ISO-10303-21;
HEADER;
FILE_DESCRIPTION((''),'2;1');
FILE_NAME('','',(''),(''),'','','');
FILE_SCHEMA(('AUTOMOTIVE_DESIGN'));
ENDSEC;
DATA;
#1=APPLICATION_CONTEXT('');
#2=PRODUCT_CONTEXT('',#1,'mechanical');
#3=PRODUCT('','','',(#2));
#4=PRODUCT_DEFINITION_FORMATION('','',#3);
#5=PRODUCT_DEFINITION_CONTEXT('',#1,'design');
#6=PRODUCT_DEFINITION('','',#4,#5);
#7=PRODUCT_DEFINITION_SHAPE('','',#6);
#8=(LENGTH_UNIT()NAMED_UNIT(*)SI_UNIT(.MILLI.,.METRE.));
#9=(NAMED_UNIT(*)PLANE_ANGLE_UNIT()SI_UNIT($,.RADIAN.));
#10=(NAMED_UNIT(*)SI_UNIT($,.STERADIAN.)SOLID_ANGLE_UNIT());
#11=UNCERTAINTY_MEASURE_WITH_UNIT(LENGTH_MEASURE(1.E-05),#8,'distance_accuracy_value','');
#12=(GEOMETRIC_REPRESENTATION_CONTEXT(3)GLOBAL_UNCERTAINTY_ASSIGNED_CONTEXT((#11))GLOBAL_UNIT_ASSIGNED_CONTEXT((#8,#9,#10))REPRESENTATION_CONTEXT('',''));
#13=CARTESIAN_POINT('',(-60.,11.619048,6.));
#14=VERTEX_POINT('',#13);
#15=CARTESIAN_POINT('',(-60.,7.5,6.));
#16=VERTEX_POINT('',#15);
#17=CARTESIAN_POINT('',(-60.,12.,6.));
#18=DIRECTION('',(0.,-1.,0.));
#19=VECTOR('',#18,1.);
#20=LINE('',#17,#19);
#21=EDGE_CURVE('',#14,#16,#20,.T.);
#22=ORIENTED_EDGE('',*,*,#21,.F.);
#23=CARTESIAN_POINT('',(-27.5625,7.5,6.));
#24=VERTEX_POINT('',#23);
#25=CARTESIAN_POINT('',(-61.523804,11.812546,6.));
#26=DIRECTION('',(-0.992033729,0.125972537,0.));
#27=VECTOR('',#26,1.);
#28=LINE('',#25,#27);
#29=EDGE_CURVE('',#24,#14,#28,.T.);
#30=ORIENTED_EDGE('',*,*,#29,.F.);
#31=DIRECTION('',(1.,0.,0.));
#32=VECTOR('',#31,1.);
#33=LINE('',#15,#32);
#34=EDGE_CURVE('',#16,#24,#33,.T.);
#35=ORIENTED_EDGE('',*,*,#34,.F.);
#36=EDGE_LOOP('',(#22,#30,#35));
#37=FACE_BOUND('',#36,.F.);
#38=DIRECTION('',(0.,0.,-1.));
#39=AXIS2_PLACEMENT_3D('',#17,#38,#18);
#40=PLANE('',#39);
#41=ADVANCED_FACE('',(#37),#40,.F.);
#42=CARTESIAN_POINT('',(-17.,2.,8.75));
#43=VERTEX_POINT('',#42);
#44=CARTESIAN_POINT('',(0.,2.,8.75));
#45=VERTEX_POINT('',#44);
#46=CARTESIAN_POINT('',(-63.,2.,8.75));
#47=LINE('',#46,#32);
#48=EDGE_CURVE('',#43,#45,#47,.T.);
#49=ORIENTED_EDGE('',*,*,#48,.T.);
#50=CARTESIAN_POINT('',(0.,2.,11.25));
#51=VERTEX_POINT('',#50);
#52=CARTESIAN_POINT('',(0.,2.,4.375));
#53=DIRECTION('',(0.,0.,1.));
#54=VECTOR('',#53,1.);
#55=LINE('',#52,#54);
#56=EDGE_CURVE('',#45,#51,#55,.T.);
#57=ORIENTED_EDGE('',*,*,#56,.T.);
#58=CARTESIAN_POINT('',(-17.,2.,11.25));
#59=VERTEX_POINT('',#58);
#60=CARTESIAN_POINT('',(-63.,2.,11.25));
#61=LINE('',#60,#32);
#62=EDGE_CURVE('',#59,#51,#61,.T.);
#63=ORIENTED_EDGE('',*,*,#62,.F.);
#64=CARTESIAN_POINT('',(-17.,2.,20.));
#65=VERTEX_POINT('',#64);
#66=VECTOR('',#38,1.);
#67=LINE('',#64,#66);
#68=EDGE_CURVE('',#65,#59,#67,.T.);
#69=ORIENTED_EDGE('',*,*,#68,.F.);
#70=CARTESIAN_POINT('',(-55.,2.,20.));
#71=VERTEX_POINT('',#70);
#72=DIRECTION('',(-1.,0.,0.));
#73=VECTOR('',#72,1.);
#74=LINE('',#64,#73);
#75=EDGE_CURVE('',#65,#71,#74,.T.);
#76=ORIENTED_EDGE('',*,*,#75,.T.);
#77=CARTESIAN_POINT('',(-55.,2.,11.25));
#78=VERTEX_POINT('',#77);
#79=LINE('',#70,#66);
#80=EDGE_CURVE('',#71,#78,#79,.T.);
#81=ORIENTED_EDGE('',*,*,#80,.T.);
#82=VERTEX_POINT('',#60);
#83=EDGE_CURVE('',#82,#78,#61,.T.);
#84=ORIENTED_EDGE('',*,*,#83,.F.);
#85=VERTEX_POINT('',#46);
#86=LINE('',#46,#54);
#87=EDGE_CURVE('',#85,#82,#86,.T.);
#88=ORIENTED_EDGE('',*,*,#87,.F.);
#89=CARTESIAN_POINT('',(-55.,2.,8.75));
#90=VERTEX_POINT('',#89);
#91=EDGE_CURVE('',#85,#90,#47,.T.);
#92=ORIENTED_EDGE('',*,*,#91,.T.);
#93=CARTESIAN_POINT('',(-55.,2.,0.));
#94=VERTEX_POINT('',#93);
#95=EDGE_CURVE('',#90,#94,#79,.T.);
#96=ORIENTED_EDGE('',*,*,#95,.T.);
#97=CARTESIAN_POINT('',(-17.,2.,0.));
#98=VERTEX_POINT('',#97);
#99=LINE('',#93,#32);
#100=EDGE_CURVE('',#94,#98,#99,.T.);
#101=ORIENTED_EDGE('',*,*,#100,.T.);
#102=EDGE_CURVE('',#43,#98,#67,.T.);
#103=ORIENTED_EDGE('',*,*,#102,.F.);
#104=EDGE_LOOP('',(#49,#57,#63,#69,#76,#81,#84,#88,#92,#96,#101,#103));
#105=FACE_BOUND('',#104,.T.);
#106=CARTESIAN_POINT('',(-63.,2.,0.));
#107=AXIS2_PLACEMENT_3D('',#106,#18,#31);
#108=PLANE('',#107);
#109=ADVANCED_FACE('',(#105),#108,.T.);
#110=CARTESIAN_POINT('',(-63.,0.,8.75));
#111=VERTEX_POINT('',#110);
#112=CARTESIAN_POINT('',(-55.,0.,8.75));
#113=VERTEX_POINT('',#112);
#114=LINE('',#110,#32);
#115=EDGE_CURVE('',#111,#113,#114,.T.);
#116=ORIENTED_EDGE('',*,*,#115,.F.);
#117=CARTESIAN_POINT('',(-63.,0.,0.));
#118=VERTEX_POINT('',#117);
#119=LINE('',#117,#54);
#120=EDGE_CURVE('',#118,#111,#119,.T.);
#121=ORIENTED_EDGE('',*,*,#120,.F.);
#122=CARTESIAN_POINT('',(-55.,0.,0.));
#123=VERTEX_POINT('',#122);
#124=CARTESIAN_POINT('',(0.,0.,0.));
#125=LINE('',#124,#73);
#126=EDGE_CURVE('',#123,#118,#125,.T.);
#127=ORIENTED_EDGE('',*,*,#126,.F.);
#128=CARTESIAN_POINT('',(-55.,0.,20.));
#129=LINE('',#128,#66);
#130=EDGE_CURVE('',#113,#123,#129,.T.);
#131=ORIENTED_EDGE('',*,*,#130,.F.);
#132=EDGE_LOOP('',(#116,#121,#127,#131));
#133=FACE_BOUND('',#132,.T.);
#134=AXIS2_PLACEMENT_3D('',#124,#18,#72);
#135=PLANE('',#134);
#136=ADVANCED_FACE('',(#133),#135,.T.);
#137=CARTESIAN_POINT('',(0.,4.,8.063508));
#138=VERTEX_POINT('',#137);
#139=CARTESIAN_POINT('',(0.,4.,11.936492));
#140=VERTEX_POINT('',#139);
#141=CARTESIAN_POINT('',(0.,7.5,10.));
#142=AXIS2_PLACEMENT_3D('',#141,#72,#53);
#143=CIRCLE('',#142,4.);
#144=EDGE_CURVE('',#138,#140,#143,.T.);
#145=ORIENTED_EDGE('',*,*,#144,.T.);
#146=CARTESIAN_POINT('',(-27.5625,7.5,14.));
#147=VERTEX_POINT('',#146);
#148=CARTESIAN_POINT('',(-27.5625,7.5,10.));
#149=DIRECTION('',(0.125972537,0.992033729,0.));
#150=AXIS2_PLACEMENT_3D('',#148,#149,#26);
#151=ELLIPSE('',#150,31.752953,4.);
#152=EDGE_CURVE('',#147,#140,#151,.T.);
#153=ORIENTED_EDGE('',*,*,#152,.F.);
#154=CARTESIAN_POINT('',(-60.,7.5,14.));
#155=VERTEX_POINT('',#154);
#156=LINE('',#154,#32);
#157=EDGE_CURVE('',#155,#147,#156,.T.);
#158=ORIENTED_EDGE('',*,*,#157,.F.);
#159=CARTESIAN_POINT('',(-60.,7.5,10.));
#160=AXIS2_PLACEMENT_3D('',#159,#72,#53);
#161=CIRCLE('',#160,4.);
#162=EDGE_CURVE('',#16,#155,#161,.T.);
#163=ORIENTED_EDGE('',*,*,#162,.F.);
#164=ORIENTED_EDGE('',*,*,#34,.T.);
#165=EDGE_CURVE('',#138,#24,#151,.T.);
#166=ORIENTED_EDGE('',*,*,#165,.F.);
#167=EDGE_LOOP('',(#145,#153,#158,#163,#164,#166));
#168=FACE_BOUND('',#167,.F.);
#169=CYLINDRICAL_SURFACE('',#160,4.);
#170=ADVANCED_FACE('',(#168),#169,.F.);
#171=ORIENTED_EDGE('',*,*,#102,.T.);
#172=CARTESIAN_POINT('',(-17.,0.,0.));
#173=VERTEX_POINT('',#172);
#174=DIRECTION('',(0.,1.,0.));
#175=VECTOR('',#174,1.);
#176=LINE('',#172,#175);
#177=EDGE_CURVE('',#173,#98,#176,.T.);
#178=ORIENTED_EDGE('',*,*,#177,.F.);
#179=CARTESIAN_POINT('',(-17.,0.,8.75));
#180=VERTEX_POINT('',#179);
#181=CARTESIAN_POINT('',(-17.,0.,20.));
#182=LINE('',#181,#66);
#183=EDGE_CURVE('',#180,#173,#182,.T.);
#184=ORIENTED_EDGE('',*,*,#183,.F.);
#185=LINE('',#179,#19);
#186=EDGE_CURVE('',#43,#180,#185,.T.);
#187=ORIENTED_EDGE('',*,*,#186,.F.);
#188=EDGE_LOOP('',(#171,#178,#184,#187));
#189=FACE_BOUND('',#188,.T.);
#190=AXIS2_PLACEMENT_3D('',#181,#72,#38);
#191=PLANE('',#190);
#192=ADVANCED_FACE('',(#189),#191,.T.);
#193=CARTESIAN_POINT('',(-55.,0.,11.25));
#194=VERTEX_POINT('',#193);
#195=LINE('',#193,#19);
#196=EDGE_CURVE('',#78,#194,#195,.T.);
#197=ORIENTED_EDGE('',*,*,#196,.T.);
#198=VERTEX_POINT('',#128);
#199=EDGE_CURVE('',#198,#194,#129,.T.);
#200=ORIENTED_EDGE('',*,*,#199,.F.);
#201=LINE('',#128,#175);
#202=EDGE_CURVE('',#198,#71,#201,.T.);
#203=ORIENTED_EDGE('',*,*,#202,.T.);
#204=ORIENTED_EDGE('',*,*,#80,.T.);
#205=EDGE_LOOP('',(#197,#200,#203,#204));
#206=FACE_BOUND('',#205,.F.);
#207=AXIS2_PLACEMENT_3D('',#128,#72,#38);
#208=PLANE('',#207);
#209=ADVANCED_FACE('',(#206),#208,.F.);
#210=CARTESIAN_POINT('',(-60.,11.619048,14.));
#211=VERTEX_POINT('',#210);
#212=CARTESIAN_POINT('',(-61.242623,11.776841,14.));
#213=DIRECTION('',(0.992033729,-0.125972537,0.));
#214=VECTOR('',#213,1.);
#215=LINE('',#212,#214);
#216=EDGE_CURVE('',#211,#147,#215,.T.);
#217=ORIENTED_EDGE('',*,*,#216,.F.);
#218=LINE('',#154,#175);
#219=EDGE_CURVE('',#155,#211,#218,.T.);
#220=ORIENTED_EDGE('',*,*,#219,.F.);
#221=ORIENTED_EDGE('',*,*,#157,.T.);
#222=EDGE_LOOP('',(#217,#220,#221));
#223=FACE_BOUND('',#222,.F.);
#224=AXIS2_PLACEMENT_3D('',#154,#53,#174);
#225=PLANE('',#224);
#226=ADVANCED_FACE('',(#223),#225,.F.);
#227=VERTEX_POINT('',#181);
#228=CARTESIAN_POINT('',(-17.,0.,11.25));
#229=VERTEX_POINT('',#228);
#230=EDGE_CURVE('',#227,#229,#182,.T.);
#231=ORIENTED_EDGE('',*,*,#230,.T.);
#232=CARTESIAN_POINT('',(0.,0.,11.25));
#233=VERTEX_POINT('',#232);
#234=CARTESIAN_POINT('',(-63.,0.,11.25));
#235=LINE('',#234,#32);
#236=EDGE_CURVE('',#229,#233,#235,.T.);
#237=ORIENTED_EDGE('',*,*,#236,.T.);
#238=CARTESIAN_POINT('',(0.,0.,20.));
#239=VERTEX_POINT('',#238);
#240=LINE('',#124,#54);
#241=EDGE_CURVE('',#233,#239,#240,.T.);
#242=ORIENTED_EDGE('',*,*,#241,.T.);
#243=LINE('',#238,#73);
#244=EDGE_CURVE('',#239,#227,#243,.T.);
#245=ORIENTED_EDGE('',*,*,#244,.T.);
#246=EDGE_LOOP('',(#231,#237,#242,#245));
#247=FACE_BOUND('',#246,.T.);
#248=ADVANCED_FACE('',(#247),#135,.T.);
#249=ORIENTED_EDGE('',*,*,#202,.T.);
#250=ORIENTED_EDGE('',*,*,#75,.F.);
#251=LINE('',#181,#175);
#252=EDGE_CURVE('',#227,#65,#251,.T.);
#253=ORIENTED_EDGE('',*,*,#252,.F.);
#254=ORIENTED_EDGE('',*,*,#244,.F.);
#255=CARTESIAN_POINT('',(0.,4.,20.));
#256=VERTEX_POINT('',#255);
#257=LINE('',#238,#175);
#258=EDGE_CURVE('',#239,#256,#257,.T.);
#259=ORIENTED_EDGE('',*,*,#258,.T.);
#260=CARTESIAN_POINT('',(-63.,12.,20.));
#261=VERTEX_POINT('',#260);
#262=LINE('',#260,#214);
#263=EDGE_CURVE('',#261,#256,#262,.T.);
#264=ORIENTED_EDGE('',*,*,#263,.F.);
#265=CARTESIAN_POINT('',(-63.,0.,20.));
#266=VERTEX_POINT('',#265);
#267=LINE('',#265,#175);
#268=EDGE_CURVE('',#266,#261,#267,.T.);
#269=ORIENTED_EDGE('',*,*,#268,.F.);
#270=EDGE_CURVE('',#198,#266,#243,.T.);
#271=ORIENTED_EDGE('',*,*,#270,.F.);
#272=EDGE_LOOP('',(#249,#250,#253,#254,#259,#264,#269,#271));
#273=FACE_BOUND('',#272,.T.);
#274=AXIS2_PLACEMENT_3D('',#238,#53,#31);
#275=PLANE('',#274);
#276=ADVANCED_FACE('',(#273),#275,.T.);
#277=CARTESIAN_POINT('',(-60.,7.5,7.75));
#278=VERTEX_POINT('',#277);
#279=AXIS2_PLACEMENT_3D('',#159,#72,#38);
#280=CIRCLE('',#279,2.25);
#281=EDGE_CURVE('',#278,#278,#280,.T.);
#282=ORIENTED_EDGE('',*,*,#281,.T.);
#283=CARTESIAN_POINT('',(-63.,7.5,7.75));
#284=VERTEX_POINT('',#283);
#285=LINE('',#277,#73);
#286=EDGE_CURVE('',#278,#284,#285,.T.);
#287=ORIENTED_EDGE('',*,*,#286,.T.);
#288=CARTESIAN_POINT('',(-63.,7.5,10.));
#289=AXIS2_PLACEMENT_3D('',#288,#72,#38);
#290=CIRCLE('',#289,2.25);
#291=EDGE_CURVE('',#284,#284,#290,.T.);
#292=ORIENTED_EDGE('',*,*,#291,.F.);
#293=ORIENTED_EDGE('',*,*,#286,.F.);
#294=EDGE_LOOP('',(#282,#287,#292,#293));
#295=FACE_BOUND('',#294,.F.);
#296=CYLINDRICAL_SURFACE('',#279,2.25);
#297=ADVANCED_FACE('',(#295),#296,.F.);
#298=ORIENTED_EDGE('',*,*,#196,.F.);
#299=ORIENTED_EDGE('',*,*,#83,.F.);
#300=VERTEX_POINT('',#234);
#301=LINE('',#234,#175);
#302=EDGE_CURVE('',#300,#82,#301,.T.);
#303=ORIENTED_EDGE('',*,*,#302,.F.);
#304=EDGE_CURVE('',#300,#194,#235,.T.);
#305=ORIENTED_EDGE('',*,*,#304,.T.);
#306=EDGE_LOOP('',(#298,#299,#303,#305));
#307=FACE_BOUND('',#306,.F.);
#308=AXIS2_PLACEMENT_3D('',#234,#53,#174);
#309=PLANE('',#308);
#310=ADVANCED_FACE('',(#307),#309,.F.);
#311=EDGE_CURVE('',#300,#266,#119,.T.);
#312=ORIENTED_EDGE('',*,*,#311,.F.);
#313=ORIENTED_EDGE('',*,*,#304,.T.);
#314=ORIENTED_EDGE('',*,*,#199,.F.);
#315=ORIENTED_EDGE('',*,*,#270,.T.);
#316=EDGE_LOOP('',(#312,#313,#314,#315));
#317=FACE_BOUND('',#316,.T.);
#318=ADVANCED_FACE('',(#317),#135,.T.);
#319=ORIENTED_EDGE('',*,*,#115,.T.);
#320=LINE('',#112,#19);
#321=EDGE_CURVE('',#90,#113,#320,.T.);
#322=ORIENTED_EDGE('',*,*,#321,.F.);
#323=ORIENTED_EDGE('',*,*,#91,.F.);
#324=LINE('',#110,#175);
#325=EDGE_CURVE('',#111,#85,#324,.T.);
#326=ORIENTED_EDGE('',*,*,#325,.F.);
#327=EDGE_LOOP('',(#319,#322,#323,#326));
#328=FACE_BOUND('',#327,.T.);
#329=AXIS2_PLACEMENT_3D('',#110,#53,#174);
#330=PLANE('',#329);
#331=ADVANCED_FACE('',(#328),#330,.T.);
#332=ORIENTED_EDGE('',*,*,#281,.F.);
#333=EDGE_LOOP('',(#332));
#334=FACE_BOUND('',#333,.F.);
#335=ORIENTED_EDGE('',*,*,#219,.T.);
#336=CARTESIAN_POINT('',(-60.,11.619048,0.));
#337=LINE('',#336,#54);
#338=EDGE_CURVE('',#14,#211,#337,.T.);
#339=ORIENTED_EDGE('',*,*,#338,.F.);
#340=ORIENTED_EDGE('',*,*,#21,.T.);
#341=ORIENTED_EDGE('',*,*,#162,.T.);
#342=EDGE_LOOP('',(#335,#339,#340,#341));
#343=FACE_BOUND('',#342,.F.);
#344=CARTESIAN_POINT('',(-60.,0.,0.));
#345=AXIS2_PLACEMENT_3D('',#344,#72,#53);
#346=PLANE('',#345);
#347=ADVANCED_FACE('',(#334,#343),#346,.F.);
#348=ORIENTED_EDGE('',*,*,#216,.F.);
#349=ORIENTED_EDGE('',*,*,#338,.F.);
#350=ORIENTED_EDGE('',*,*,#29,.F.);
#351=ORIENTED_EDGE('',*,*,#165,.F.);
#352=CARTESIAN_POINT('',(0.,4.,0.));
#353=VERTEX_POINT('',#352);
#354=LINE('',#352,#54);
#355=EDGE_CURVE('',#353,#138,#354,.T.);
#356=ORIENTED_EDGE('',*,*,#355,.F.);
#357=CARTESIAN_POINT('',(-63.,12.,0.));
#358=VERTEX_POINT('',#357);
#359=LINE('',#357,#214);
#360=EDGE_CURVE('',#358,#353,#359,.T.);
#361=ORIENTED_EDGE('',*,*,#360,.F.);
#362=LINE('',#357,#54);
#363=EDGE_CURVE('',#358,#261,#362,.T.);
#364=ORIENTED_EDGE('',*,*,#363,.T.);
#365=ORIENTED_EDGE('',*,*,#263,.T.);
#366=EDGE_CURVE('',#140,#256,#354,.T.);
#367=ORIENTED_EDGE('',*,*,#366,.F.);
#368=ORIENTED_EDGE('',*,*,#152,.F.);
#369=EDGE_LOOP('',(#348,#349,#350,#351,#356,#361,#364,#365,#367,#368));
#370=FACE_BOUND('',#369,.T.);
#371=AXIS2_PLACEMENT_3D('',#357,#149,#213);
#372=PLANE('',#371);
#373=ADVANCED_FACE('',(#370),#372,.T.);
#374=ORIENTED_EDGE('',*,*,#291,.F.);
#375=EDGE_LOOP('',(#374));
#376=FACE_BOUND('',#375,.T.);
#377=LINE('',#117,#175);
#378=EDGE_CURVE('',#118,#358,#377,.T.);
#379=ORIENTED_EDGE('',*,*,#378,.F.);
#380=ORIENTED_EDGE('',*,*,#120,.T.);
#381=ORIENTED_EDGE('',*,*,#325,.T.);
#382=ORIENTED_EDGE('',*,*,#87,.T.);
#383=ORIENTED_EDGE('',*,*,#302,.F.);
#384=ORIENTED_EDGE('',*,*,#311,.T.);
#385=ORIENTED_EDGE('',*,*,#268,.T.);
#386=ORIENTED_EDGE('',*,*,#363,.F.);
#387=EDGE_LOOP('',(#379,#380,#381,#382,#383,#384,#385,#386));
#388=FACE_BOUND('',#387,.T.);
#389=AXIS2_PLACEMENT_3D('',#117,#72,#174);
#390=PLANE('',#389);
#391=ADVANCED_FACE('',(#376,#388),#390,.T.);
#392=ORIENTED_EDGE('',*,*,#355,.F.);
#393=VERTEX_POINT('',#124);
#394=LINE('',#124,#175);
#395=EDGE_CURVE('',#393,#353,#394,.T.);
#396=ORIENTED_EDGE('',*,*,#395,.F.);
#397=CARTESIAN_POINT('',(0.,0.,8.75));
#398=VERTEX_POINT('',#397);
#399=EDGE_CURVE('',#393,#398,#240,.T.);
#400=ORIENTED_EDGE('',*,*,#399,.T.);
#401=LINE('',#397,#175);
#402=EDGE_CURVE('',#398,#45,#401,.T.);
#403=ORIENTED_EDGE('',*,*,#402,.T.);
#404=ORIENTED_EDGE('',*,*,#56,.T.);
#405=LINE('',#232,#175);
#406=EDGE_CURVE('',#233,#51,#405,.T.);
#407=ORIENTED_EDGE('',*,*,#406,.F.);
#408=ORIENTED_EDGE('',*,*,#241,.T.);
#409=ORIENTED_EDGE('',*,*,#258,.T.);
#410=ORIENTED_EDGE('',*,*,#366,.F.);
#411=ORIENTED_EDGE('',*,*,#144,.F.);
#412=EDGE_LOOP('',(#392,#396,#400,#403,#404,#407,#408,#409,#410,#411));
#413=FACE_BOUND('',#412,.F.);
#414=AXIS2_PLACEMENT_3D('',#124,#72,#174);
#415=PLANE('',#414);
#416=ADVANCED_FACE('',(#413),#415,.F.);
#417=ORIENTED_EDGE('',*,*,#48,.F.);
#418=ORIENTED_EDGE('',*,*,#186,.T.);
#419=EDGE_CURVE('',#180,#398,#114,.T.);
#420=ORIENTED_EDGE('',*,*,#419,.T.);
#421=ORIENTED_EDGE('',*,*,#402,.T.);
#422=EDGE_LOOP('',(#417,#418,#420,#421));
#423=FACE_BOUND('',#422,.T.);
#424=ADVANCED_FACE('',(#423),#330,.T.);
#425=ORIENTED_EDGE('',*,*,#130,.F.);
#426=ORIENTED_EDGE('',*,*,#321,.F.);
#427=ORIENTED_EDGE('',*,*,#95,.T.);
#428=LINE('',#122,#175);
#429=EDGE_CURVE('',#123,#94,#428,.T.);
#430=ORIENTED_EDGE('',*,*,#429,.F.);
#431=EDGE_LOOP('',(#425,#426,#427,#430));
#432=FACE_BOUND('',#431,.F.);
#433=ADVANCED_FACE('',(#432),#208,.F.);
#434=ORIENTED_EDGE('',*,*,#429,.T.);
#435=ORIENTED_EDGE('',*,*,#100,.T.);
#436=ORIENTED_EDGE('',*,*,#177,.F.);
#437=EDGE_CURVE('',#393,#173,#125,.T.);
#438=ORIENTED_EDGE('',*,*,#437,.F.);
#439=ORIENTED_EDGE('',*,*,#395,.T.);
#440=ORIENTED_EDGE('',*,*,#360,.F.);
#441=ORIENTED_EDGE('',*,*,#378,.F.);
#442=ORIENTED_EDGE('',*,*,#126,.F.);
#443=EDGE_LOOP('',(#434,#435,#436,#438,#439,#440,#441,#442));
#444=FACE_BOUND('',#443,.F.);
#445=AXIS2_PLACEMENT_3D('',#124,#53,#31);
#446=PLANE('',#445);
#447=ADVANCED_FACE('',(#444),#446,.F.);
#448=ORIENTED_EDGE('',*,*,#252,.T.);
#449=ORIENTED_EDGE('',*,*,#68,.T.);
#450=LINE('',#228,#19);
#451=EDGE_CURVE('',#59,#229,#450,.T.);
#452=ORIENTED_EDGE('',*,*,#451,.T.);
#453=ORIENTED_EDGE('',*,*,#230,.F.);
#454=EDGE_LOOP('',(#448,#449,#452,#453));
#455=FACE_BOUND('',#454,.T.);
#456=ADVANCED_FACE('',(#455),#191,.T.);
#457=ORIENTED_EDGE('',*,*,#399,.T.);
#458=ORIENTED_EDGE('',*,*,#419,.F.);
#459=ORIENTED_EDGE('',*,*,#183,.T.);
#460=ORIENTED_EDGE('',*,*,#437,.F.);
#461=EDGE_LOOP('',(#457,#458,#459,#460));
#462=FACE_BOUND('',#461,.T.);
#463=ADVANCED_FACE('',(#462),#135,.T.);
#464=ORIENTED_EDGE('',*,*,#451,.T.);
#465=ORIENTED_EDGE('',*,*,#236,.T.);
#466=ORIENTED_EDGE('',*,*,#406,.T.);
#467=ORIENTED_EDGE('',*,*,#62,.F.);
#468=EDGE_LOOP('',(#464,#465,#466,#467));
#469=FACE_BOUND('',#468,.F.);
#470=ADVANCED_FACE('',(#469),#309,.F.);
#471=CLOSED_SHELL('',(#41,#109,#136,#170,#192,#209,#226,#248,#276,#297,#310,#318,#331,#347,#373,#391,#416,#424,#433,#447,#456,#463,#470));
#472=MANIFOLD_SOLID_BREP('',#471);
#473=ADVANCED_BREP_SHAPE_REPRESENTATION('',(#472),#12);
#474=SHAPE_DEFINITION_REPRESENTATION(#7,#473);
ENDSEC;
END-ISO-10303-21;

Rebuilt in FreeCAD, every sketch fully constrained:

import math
import FreeCAD as App
import Part
import Sketcher

V = App.Vector
Q = App.Units.Quantity


def add_polygon(sketch, points):
    """Adds a closed chain of lines whose ends are joined by coincident constraints."""
    first, n = sketch.GeometryCount, len(points)
    for a, b in zip(points, points[1:] + points[:1]):
        sketch.addGeometry(Part.LineSegment(App.Vector(*a, 0), App.Vector(*b, 0)), False)
    for i in range(n):
        sketch.addConstraint(Sketcher.Constraint("Coincident", first + i, 2, first + (i + 1) % n, 1))

doc = App.newDocument("Part")
body = doc.addObject("PartDesign::Body", "Body")

sketch1 = body.newObject("Sketcher::SketchObject", "Sketch")
sketch1.AttachmentSupport = (doc.getObject("XY_Plane"), [""])
sketch1.MapMode = "FlatFace"
add_polygon(sketch1, [(-63, 0), (0, 0), (0, 4), (-63, 12)])
sketch1.addConstraint([
    Sketcher.Constraint("Horizontal", 0),
    Sketcher.Constraint("Vertical", 1),
    Sketcher.Constraint("Vertical", 3),
    Sketcher.Constraint("Coincident", 0, 2, -1, 1),
    Sketcher.Constraint("DistanceX", 0, 1, 0, 2, Q("63 mm")),
    Sketcher.Constraint("DistanceY", 1, 1, 1, 2, Q("4 mm")),
    Sketcher.Constraint("DistanceY", 3, 2, 3, 1, Q("12 mm")),
])
pad1 = body.newObject("PartDesign::Pad", "Pad")
pad1.Profile = sketch1
pad1.Length = 20

sketch2 = body.newObject("Sketcher::SketchObject", "Sketch001")
sketch2.AttachmentSupport = (doc.getObject("YZ_Plane"), [""])
sketch2.MapMode = "FlatFace"
sketch2.AttachmentOffset = App.Placement(V(0, 0, -63), App.Rotation())
add_polygon(sketch2, [(2, 8.8), (0, 8.8), (0, 11.2), (2, 11.2)])
sketch2.addConstraint([
    Sketcher.Constraint("Horizontal", 0),
    Sketcher.Constraint("Vertical", 1),
    Sketcher.Constraint("Horizontal", 2),
    Sketcher.Constraint("Vertical", 3),
    Sketcher.Constraint("PointOnObject", 0, 2, -2),
    Sketcher.Constraint("DistanceX", 0, 2, 0, 1, Q("2 mm")),
    Sketcher.Constraint("DistanceY", 1, 1, 1, 2, Q("2.5 mm")),
    Sketcher.Constraint("DistanceY", -1, 1, 0, 2, Q("8.75 mm")),
])
pocket1 = body.newObject("PartDesign::Pocket", "Pocket")
pocket1.Profile = sketch2
pocket1.Type = "ThroughAll"
pocket1.Reversed = True

sketch3 = body.newObject("Sketcher::SketchObject", "Sketch002")
sketch3.AttachmentSupport = (doc.getObject("YZ_Plane"), [""])
sketch3.MapMode = "FlatFace"
sketch3.AttachmentOffset = App.Placement(V(0, 0, -60), App.Rotation())
sketch3.addGeometry([
    Part.LineSegment(V(12, 14, 0), V(12, 6, 0)),
    Part.LineSegment(V(12, 6, 0), V(7.5, 6, 0)),
    Part.ArcOfCircle(Part.Circle(V(7.5, 10, 0), V(0, 0, 1), 4), math.radians(90), math.radians(270)),
    Part.LineSegment(V(7.5, 14, 0), V(12, 14, 0)),
], False)
sketch3.addConstraint([
    Sketcher.Constraint("Coincident", 0, 2, 1, 1),
    Sketcher.Constraint("Tangent", 1, 2, 2, 2),
    Sketcher.Constraint("Tangent", 2, 1, 3, 1),
    Sketcher.Constraint("Coincident", 3, 2, 0, 1),
    Sketcher.Constraint("Vertical", 0),
    Sketcher.Constraint("Horizontal", 1),
    Sketcher.Constraint("Horizontal", 3),
    Sketcher.Constraint("Radius", 2, Q("4 mm")),
    Sketcher.Constraint("DistanceX", 1, 2, 1, 1, Q("4.5 mm")),
    Sketcher.Constraint("DistanceY", -1, 1, 2, 3, Q("10 mm")),
    Sketcher.Constraint("DistanceX", -1, 1, 0, 2, Q("12 mm")),
])
pocket2 = body.newObject("PartDesign::Pocket", "Pocket001")
pocket2.Profile = sketch3
pocket2.Type = "ThroughAll"
pocket2.Reversed = True

sketch4 = body.newObject("Sketcher::SketchObject", "Sketch003")
sketch4.AttachmentSupport = (doc.getObject("YZ_Plane"), [""])
sketch4.MapMode = "FlatFace"
sketch4.AttachmentOffset = App.Placement(V(0, 0, -60), App.Rotation())
sketch4.addGeometry(Part.Circle(V(7.5, 10, 0), V(0, 0, 1), 2.2), False)
sketch4.addConstraint([
    Sketcher.Constraint("Diameter", 0, Q("4.5 mm")),
    Sketcher.Constraint("DistanceY", -1, 1, 0, 3, Q("10 mm")),
    Sketcher.Constraint("DistanceX", -1, 1, 0, 3, Q("7.5 mm")),
])
doc.recompute()
hole = body.newObject("PartDesign::Hole", "Hole")
hole.Profile = sketch4
hole.ThreadType = "None"
hole.Diameter = 4.5
hole.DepthType = "ThroughAll"

sketch5 = body.newObject("Sketcher::SketchObject", "Sketch004")
sketch5.AttachmentSupport = (doc.getObject("XZ_Plane"), [""])
sketch5.MapMode = "FlatFace"
add_polygon(sketch5, [(-17, 0), (-17, 20), (-55, 20), (-55, 0)])
sketch5.addConstraint([
    Sketcher.Constraint("Vertical", 0),
    Sketcher.Constraint("Horizontal", 1),
    Sketcher.Constraint("Vertical", 2),
    Sketcher.Constraint("Horizontal", 3),
    Sketcher.Constraint("PointOnObject", 2, 2, -1),
    Sketcher.Constraint("DistanceX", 1, 2, 1, 1, Q("38 mm")),
    Sketcher.Constraint("DistanceY", 0, 1, 0, 2, Q("20 mm")),
    Sketcher.Constraint("DistanceX", 0, 2, -1, 1, Q("17 mm")),
])
pocket3 = body.newObject("PartDesign::Pocket", "Pocket002")
pocket3.Profile = sketch5
pocket3.Length = 2

doc.recompute()
